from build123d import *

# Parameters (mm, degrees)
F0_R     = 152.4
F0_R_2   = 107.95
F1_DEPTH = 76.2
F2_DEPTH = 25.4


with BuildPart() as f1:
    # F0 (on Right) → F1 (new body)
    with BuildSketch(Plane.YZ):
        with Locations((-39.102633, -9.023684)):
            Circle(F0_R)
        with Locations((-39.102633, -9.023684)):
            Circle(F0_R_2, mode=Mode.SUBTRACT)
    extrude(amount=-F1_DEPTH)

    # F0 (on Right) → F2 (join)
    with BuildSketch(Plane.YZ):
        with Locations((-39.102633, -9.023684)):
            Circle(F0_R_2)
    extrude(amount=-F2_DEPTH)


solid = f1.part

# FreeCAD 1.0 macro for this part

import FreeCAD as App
import Part
import Sketcher

V = App.Vector
Q = App.Units.Quantity

doc = App.newDocument("Part")
body = doc.addObject("PartDesign::Body", "Body")

sketch1 = body.newObject("Sketcher::SketchObject", "Sketch")
sketch1.AttachmentSupport = (doc.getObject("YZ_Plane"), [""])
sketch1.MapMode = "FlatFace"
sketch1.addGeometry(Part.Circle(V(-39.102633, -9.023684, 0), V(0, 0, 1), 152.4), False)
sketch1.addGeometry(Part.Circle(V(-39.102633, -9.023684, 0), V(0, 0, 1), 107.95), False)
sketch1.addConstraint(Sketcher.Constraint("Coincident", 1, 3, 0, 3))
sketch1.addConstraint(Sketcher.Constraint("Diameter", 0, Q("12 in")))
sketch1.addConstraint(Sketcher.Constraint("Diameter", 1, Q("8.5 in")))
sketch1.addConstraint(Sketcher.Constraint("DistanceX", 0, 3, -1, 1, 39.102633))
sketch1.addConstraint(Sketcher.Constraint("DistanceY", 0, 3, -1, 1, 9.023684))
pad1 = body.newObject("PartDesign::Pad", "Pad")
pad1.Profile = sketch1
pad1.Length = Q("3 in")
pad1.Reversed = True

sketch2 = body.newObject("Sketcher::SketchObject", "Sketch001")
sketch2.AttachmentSupport = (doc.getObject("YZ_Plane"), [""])
sketch2.MapMode = "FlatFace"
sketch2.addGeometry(Part.Circle(V(-39.102633, -9.023684, 0), V(0, 0, 1), 107.95), False)
sketch2.addConstraint(Sketcher.Constraint("Diameter", 0, Q("8.5 in")))
sketch2.addConstraint(Sketcher.Constraint("DistanceX", 0, 3, -1, 1, 39.102633))
sketch2.addConstraint(Sketcher.Constraint("DistanceY", 0, 3, -1, 1, 9.023684))
pad2 = body.newObject("PartDesign::Pad", "Pad001")
pad2.Profile = sketch2
pad2.Length = Q("1 in")
pad2.Reversed = True

doc.recompute()
